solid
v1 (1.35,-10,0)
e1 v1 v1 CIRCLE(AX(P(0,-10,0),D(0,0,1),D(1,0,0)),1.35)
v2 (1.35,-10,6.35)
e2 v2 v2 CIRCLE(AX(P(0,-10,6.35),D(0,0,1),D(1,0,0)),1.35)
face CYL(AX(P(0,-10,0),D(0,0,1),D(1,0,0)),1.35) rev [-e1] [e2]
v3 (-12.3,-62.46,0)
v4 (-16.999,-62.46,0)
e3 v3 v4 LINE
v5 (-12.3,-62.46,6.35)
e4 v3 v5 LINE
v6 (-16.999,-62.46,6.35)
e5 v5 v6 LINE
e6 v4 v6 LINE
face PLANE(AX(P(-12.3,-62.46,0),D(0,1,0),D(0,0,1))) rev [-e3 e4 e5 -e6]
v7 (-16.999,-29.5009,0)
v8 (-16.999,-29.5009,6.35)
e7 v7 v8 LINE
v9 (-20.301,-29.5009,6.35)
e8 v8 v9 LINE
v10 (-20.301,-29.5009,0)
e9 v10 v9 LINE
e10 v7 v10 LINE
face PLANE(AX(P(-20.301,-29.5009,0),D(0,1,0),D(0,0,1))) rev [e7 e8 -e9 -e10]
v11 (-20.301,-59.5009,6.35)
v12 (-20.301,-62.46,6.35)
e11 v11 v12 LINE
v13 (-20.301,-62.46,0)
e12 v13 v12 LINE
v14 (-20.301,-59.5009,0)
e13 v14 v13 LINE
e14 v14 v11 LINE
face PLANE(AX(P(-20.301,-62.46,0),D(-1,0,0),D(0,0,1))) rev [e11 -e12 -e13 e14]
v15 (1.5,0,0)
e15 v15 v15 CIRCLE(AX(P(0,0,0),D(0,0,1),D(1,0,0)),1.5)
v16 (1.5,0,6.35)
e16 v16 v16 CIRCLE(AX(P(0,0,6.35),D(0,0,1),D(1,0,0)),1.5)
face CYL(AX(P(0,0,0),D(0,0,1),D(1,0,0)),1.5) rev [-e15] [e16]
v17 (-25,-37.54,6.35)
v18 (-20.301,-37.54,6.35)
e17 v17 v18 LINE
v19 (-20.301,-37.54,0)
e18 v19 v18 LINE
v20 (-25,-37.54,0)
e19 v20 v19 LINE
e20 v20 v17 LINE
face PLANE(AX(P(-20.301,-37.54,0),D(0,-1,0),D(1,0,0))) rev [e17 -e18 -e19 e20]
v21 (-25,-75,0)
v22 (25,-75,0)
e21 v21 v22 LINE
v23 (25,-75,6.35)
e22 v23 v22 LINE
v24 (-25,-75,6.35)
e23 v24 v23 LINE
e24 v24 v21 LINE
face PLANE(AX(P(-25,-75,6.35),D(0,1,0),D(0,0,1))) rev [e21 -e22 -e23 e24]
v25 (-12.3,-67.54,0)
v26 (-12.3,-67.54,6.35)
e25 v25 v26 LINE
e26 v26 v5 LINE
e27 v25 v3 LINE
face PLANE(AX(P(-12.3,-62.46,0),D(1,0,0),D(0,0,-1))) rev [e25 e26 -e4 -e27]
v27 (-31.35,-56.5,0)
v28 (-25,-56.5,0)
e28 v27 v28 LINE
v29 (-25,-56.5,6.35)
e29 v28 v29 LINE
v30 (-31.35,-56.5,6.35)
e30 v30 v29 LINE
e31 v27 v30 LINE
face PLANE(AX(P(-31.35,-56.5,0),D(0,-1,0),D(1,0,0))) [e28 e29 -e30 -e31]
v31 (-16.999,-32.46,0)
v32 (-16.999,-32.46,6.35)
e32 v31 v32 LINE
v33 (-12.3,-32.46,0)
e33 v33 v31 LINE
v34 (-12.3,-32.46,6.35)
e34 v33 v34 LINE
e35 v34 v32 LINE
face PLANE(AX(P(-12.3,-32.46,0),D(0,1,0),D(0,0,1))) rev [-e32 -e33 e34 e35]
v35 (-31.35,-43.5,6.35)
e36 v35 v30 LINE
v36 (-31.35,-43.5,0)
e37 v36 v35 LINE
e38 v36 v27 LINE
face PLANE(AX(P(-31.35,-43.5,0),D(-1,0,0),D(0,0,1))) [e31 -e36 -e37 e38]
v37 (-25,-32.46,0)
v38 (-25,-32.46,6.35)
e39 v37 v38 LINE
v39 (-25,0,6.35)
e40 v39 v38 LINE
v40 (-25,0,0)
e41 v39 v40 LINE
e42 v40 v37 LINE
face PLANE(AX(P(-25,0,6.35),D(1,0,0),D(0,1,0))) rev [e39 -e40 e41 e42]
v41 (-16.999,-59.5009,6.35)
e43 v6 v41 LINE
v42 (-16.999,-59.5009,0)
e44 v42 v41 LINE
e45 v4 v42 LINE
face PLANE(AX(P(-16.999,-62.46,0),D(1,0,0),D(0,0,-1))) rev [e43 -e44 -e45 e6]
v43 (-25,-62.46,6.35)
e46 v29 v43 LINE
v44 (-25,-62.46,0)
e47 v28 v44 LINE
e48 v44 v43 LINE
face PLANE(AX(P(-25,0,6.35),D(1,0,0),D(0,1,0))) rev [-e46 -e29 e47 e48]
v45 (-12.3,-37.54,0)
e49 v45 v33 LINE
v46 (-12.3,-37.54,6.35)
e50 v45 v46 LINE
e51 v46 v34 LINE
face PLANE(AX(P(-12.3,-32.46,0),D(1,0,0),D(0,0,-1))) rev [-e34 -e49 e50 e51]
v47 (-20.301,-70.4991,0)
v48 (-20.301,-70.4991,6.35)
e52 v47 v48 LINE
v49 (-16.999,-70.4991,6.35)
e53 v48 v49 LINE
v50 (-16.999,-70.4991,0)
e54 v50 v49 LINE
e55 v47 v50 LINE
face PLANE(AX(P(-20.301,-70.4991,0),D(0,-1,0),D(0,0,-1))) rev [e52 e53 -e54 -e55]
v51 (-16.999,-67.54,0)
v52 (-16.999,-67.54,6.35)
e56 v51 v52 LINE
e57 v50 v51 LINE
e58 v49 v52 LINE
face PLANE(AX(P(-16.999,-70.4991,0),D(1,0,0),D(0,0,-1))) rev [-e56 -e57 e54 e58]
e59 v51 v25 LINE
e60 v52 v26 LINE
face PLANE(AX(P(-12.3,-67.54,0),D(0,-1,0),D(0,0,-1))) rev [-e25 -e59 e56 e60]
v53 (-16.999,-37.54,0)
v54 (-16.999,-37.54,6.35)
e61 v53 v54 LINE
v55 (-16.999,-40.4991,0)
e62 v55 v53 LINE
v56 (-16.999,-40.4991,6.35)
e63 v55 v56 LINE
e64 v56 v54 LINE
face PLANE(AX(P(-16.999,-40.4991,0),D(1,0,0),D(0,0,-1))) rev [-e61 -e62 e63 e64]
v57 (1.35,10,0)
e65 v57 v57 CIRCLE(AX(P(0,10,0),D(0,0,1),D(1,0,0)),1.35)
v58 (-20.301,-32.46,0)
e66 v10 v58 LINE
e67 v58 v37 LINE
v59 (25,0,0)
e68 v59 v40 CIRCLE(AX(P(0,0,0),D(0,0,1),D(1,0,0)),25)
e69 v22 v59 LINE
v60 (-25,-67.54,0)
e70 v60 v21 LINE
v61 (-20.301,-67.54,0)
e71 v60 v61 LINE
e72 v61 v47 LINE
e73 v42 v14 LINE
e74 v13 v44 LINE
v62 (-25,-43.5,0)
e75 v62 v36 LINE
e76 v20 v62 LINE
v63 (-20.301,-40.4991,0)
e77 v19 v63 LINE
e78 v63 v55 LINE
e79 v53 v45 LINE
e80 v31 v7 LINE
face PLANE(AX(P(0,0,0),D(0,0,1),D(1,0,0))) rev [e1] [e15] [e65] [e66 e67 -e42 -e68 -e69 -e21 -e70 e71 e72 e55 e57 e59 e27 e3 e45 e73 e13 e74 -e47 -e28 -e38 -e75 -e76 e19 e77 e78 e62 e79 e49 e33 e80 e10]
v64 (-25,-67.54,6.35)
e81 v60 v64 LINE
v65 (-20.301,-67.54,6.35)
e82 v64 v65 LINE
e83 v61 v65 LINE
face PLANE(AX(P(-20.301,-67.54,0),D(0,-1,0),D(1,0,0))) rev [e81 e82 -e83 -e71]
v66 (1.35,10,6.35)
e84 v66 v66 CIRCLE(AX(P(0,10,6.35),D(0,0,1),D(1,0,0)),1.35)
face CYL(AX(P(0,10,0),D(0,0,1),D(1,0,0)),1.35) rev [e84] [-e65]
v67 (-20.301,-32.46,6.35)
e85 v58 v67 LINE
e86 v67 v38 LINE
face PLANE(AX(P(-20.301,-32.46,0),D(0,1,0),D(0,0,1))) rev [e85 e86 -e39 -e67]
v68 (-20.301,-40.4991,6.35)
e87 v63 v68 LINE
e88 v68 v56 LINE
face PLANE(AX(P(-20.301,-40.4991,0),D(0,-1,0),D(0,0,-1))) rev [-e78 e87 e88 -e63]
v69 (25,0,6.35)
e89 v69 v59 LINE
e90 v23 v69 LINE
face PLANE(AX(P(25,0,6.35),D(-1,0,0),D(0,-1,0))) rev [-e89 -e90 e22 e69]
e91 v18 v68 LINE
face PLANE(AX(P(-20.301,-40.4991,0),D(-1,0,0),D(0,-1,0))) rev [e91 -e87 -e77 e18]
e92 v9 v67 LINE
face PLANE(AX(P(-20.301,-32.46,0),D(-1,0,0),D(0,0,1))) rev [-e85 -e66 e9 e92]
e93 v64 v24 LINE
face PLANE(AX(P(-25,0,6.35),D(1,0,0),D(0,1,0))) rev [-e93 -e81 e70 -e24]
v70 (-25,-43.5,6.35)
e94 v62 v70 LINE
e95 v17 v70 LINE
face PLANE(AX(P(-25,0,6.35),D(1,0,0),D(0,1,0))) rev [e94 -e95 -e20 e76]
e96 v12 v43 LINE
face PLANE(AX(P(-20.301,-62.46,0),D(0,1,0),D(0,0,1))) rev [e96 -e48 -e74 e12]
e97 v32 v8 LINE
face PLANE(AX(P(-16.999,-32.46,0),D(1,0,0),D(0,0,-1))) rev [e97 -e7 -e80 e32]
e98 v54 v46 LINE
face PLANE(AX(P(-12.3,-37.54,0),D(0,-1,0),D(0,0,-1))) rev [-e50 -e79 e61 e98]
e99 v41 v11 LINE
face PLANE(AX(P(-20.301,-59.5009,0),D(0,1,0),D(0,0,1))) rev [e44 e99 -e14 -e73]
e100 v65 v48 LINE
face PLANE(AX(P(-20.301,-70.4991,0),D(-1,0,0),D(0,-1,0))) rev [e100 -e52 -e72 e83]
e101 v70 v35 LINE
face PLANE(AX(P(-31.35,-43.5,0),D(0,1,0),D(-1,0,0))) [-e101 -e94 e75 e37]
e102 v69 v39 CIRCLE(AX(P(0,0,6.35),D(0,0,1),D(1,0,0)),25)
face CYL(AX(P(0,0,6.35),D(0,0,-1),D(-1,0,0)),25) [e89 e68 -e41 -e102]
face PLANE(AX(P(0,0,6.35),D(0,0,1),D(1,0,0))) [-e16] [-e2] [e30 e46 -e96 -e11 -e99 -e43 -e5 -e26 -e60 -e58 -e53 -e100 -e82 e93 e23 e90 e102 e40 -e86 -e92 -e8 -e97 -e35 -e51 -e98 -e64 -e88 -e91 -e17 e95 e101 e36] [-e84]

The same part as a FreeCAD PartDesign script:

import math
import FreeCAD as App
import Part
import Sketcher

V = App.Vector


def add_polygon(sketch, points):
    """Adds a closed chain of lines whose ends are joined by coincident constraints."""
    first, n = sketch.GeometryCount, len(points)
    for a, b in zip(points, points[1:] + points[:1]):
        sketch.addGeometry(Part.LineSegment(App.Vector(*a, 0), App.Vector(*b, 0)), False)
    for i in range(n):
        sketch.addConstraint(Sketcher.Constraint("Coincident", first + i, 2, first + (i + 1) % n, 1))

doc = App.newDocument("Part")
body = doc.addObject("PartDesign::Body", "Body")

sketch1 = body.newObject("Sketcher::SketchObject", "Sketch")
sketch1.AttachmentSupport = (doc.getObject("XY_Plane"), [""])
sketch1.MapMode = "FlatFace"
sketch1.addGeometry([
    Part.LineSegment(V(-25, 0, 0), V(-25, -75, 0)),
    Part.LineSegment(V(-25, -75, 0), V(25, -75, 0)),
    Part.LineSegment(V(25, -75, 0), V(25, 0, 0)),
    Part.ArcOfCircle(Part.Circle(V(0, 0, 0), V(0, 0, 1), 25), math.radians(0), math.radians(180)),
], False)
sketch1.addConstraint([
    Sketcher.Constraint("Coincident", 0, 2, 1, 1),
    Sketcher.Constraint("Coincident", 1, 2, 2, 1),
    Sketcher.Constraint("Tangent", 2, 2, 3, 1),
    Sketcher.Constraint("Tangent", 3, 2, 0, 1),
    Sketcher.Constraint("Vertical", 0),
    Sketcher.Constraint("Horizontal", 1),
    Sketcher.Constraint("Vertical", 2),
    Sketcher.Constraint("Coincident", 3, 3, -1, 1),
    Sketcher.Constraint("Radius", 3, 25.0),
    Sketcher.Constraint("DistanceY", 0, 2, 0, 1, 75.0),
])
pad1 = body.newObject("PartDesign::Pad", "Pad")
pad1.Profile = sketch1
pad1.Length = 6.35

sketch2 = body.newObject("Sketcher::SketchObject", "Sketch001")
sketch2.AttachmentSupport = (doc.getObject("XY_Plane"), [""])
sketch2.MapMode = "FlatFace"
sketch2.AttachmentOffset = App.Placement(V(0, 0, 6.35), App.Rotation())
sketch2.addGeometry([
    Part.Circle(V(0, 0, 0), V(0, 0, 1), 1.5),
    Part.Circle(V(0, 10, 0), V(0, 0, 1), 1.4),
    Part.Circle(V(0, -10, 0), V(0, 0, 1), 1.4),
], False)
sketch2.addConstraint([
    Sketcher.Constraint("Coincident", 0, 3, -1, 1),
    Sketcher.Constraint("Equal", 1, 2),
    Sketcher.Constraint("Symmetric", 1, 3, 2, 3, -1, 1),
    Sketcher.Constraint("PointOnObject", 1, 3, -2),
    Sketcher.Constraint("Diameter", 0, 3.0),
    Sketcher.Constraint("Diameter", 1, 2.7),
    Sketcher.Constraint("DistanceY", -1, 1, 1, 3, 10.0),
])
pocket1 = body.newObject("PartDesign::Pocket", "Pocket")
pocket1.Profile = sketch2
pocket1.Type = "ThroughAll"

sketch3 = body.newObject("Sketcher::SketchObject", "Sketch002")
sketch3.AttachmentSupport = (doc.getObject("XY_Plane"), [""])
sketch3.MapMode = "FlatFace"
sketch3.AttachmentOffset = App.Placement(V(0, 0, 6.35), App.Rotation())
add_polygon(sketch3, [(-17, -67.5), (-12.3, -67.5), (-12.3, -62.5), (-17, -62.5), (-17, -59.5), (-20.3, -59.5), (-20.3, -62.5), (-25, -62.5), (-25, -67.5), (-20.3, -67.5), (-20.3, -70.5), (-17, -70.5)])
add_polygon(sketch3, [(-17, -37.5), (-12.3, -37.5), (-12.3, -32.5), (-17, -32.5), (-17, -29.5), (-20.3, -29.5), (-20.3, -32.5), (-25, -32.5), (-25, -37.5), (-20.3, -37.5), (-20.3, -40.5), (-17, -40.5)])
sketch3.addConstraint([
    Sketcher.Constraint("Horizontal", 0),
    Sketcher.Constraint("Vertical", 1),
    Sketcher.Constraint("Horizontal", 2),
    Sketcher.Constraint("Vertical", 3),
    Sketcher.Constraint("Horizontal", 4),
    Sketcher.Constraint("Vertical", 5),
    Sketcher.Constraint("Horizontal", 6),
    Sketcher.Constraint("Vertical", 7),
    Sketcher.Constraint("Horizontal", 8),
    Sketcher.Constraint("Vertical", 9),
    Sketcher.Constraint("Horizontal", 10),
    Sketcher.Constraint("Vertical", 11),
    Sketcher.Constraint("Horizontal", 12),
    Sketcher.Constraint("Vertical", 13),
    Sketcher.Constraint("Horizontal", 14),
    Sketcher.Constraint("Vertical", 15),
    Sketcher.Constraint("Horizontal", 16),
    Sketcher.Constraint("Vertical", 17),
    Sketcher.Constraint("Horizontal", 18),
    Sketcher.Constraint("Vertical", 19),
    Sketcher.Constraint("Horizontal", 20),
    Sketcher.Constraint("Vertical", 21),
    Sketcher.Constraint("Horizontal", 22),
    Sketcher.Constraint("Vertical", 23),
    Sketcher.Constraint("Horizontal", 2, 2, 5, 2),
    Sketcher.Constraint("Horizontal", 0, 2, 7, 2),
    Sketcher.Constraint("Horizontal", 14, 2, 17, 2),
    Sketcher.Constraint("Horizontal", 12, 2, 19, 2),
    Sketcher.Constraint("Vertical", 5, 2, 8, 2),
    Sketcher.Constraint("Vertical", 3, 2, 10, 2),
    Sketcher.Constraint("Vertical", 1, 2, 12, 2),
    Sketcher.Constraint("Vertical", 11, 2, 14, 2),
    Sketcher.Constraint("Vertical", 9, 2, 16, 2),
    Sketcher.Constraint("Vertical", 7, 2, 18, 2),
    Sketcher.Constraint("Vertical", 17, 2, 20, 2),
    Sketcher.Constraint("Vertical", 15, 2, 22, 2),
    Sketcher.Constraint("Equal", 2, 6),
    Sketcher.Constraint("Equal", 5, 9),
    Sketcher.Constraint("Equal", 7, 13),
    Sketcher.Constraint("Equal", 11, 15),
    Sketcher.Constraint("Equal", 17, 21),
    Sketcher.Constraint("DistanceX", 6, 2, -1, 1, 25.0),
    Sketcher.Constraint("DistanceY", 1, 2, 13, 2, 30.0),
    Sketcher.Constraint("DistanceY", 1, 1, 1, 2, 5.08),
    Sketcher.Constraint("DistanceX", 0, 2, -1, 1, 12.3),
    Sketcher.Constraint("DistanceX", 0, 1, 0, 2, 4.699),
    Sketcher.Constraint("DistanceY", 0, 2, -1, 1, 67.54),
    Sketcher.Constraint("DistanceY", 3, 1, 3, 2, 2.9591),
])
pocket2 = body.newObject("PartDesign::Pocket", "Pocket001")
pocket2.Profile = sketch3
pocket2.Type = "ThroughAll"

sketch4 = body.newObject("Sketcher::SketchObject", "Sketch003")
sketch4.AttachmentSupport = (doc.getObject("XY_Plane"), [""])
sketch4.MapMode = "FlatFace"
sketch4.AttachmentOffset = App.Placement(V(0, 0, 6.35), App.Rotation())
add_polygon(sketch4, [(-31, -44), (-31, -56), (-25, -56), (-25, -44)])
sketch4.addConstraint([
    Sketcher.Constraint("Vertical", 0),
    Sketcher.Constraint("Horizontal", 1),
    Sketcher.Constraint("Vertical", 2),
    Sketcher.Constraint("Horizontal", 3),
    Sketcher.Constraint("DistanceY", 0, 2, 0, 1, 13.0),
    Sketcher.Constraint("DistanceX", 1, 2, -1, 1, 25.0),
    Sketcher.Constraint("DistanceX", 1, 1, 1, 2, 6.35),
    Sketcher.Constraint("DistanceY", 0, 2, -1, 1, 56.5),
])
pad2 = body.newObject("PartDesign::Pad", "Pad001")
pad2.Profile = sketch4
pad2.Length = 6.35
pad2.Reversed = True

doc.recompute()
